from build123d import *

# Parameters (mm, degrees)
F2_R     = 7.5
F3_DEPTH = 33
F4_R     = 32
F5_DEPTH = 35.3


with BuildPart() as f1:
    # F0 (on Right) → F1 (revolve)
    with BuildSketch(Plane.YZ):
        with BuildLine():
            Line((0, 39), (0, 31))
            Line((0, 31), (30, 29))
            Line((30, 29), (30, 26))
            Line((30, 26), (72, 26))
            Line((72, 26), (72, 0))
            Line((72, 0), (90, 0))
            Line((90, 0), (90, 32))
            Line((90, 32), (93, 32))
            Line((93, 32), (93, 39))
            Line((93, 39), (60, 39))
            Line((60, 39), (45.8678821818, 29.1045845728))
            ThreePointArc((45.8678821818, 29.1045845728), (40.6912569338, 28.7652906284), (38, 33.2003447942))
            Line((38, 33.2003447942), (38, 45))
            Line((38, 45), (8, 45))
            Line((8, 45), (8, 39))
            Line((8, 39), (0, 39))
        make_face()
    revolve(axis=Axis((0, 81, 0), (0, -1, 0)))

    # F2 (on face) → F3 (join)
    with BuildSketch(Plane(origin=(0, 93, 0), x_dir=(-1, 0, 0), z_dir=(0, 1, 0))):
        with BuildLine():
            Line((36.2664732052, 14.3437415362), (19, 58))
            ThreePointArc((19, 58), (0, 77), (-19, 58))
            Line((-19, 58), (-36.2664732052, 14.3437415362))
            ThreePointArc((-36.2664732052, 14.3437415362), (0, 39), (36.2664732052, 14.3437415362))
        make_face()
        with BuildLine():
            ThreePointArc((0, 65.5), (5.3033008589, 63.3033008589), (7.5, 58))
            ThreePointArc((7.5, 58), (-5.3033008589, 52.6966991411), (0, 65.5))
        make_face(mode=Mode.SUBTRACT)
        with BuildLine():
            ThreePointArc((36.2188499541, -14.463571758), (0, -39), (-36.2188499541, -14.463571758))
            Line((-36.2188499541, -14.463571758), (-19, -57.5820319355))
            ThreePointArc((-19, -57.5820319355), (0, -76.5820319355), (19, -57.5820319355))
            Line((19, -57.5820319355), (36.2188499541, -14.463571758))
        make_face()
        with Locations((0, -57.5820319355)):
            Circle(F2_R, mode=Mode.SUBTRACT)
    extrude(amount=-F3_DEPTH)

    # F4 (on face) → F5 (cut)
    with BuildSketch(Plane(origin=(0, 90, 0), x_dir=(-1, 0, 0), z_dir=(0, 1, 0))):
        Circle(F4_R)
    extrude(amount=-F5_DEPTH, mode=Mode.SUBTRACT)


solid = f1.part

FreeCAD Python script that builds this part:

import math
import FreeCAD as App
import Part
import Sketcher
from FreeCAD import Vector
Q = App.Units.Quantity

doc = App.newDocument("Part")
body = doc.addObject("PartDesign::Body", "Body")

# Sketch on YZ plane
sketch1 = body.newObject("Sketcher::SketchObject", "Sketch")
sketch1.AttachmentSupport = (doc.getObject("YZ_Plane"), [""])
sketch1.MapMode = "FlatFace"
sketch1.addGeometry([
    Part.LineSegment(Vector(0, 39, 0), Vector(0, 31, 0)),  # 0
    Part.LineSegment(Vector(0, 31, 0), Vector(30, 29, 0)),  # 1
    Part.LineSegment(Vector(30, 29, 0), Vector(30, 26, 0)),  # 2
    Part.LineSegment(Vector(30, 26, 0), Vector(72, 26, 0)),  # 3
    Part.LineSegment(Vector(72, 26, 0), Vector(72, 0, 0)),  # 4
    Part.LineSegment(Vector(72, 0, 0), Vector(90, 0, 0)),  # 5
    Part.LineSegment(Vector(90, 0, 0), Vector(90, 32, 0)),  # 6
    Part.LineSegment(Vector(90, 32, 0), Vector(93, 32, 0)),  # 7
    Part.LineSegment(Vector(93, 32, 0), Vector(93, 39, 0)),  # 8
    Part.LineSegment(Vector(93, 39, 0), Vector(60, 39, 0)),  # 9
    Part.LineSegment(Vector(60, 39, 0), Vector(45.9, 29.1, 0)),  # 10
    Part.ArcOfCircle(Part.Circle(Vector(43, 33.2, 0), Vector(0, 0, 1), 5), math.radians(180), math.radians(305)),  # 11
    Part.LineSegment(Vector(38, 33.2, 0), Vector(38, 45, 0)),  # 12
    Part.LineSegment(Vector(38, 45, 0), Vector(8, 45, 0)),  # 13
    Part.LineSegment(Vector(8, 45, 0), Vector(8, 39, 0)),  # 14
    Part.LineSegment(Vector(8, 39, 0), Vector(0, 39, 0)),  # 15
], False)
sketch1.addConstraint([
    Sketcher.Constraint("Coincident", 0, 2, 1, 1),
    Sketcher.Constraint("Coincident", 1, 2, 2, 1),
    Sketcher.Constraint("Coincident", 2, 2, 3, 1),
    Sketcher.Constraint("Coincident", 3, 2, 4, 1),
    Sketcher.Constraint("Coincident", 4, 2, 5, 1),
    Sketcher.Constraint("Coincident", 5, 2, 6, 1),
    Sketcher.Constraint("Coincident", 6, 2, 7, 1),
    Sketcher.Constraint("Coincident", 7, 2, 8, 1),
    Sketcher.Constraint("Coincident", 8, 2, 9, 1),
    Sketcher.Constraint("Coincident", 9, 2, 10, 1),
    Sketcher.Constraint("Tangent", 10, 2, 11, 2),
    Sketcher.Constraint("Tangent", 11, 1, 12, 1),
    Sketcher.Constraint("Coincident", 12, 2, 13, 1),
    Sketcher.Constraint("Coincident", 13, 2, 14, 1),
    Sketcher.Constraint("Coincident", 14, 2, 15, 1),
    Sketcher.Constraint("Coincident", 15, 2, 0, 1),
    Sketcher.Constraint("Vertical", 0),
    Sketcher.Constraint("Vertical", 2),
    Sketcher.Constraint("Horizontal", 3),
    Sketcher.Constraint("Vertical", 4),
    Sketcher.Constraint("Horizontal", 5),
    Sketcher.Constraint("Vertical", 6),
    Sketcher.Constraint("Horizontal", 7),
    Sketcher.Constraint("Vertical", 8),
    Sketcher.Constraint("Horizontal", 9),
    Sketcher.Constraint("Vertical", 12),
    Sketcher.Constraint("Horizontal", 13),
    Sketcher.Constraint("Vertical", 14),
    Sketcher.Constraint("Horizontal", 15),
    Sketcher.Constraint("PointOnObject", 0, 2, -2),
    Sketcher.Constraint("PointOnObject", 4, 2, -1),
    Sketcher.Constraint("Horizontal", 9, 2, 14, 2),
    Sketcher.Constraint("Equal", 15, 0),
    Sketcher.Constraint("Equal", 7, 2),
    Sketcher.Constraint("Radius", 11, Q("5 mm")),
    Sketcher.Constraint("DistanceX", 3, 1, 3, 2, Q("42 mm")),
    Sketcher.Constraint("DistanceX", 5, 1, 5, 2, Q("18 mm")),
    Sketcher.Constraint("DistanceX", 7, 1, 7, 2, Q("3 mm")),
    Sketcher.Constraint("DistanceX", 9, 2, 9, 1, Q("33 mm")),
    Sketcher.Constraint("DistanceX", 13, 2, 13, 1, Q("30 mm")),
    Sketcher.Constraint("DistanceX", 15, 2, 15, 1, Q("8 mm")),
    Sketcher.Constraint("DistanceY", 4, 2, 4, 1, Q("26 mm")),
    Sketcher.Constraint("DistanceY", 6, 1, 6, 2, Q("32 mm")),
    Sketcher.Constraint("DistanceY", 8, 1, 8, 2, Q("7 mm")),
    Sketcher.Constraint("DistanceY", 14, 2, 14, 1, Q("6 mm")),
    Sketcher.Constraint("Angle", 10, Q("-145 deg")),
    Sketcher.Constraint("DistanceX", -1, 1, 1, 2, Q("30 mm")),
])
revolution = body.newObject("PartDesign::Revolution", "Revolution")
revolution.Profile = sketch1
revolution.ReferenceAxis = (sketch1, ["H_Axis"])
revolution.Angle = 360

# Sketch on XZ plane
sketch2 = body.newObject("Sketcher::SketchObject", "Sketch001")
sketch2.AttachmentSupport = (doc.getObject("XZ_Plane"), [""])
sketch2.MapMode = "FlatFace"
sketch2.AttachmentOffset = App.Placement(Vector(0, 0, -93), App.Rotation())
sketch2.addGeometry([
    Part.LineSegment(Vector(-36, 14, 0), Vector(-19, 58, 0)),  # 0
    Part.ArcOfCircle(Part.Circle(Vector(0, 58, 0), Vector(0, 0, 1), 19), math.radians(0), math.radians(180)),  # 1
    Part.LineSegment(Vector(19, 58, 0), Vector(36, 14, 0)),  # 2
    Part.ArcOfCircle(Part.Circle(Vector(0, 0, 0), Vector(0, 0, 1), 39), math.radians(22), math.radians(158)),  # 3
    Part.Circle(Vector(0, 58, 0), Vector(0, 0, 1), 8),  # 4
    Part.ArcOfCircle(Part.Circle(Vector(0, 0, 0), Vector(0, 0, 1), 39), math.radians(-158), math.radians(-22)),  # 5
    Part.LineSegment(Vector(36, -14, 0), Vector(19, -58, 0)),  # 6
    Part.ArcOfCircle(Part.Circle(Vector(0, -58, 0), Vector(0, 0, 1), 19), math.radians(180), math.radians(360)),  # 7
    Part.LineSegment(Vector(-19, -58, 0), Vector(-36, -14, 0)),  # 8
    Part.Circle(Vector(0, -58, 0), Vector(0, 0, 1), 8),  # 9
], False)
sketch2.addConstraint([
    Sketcher.Constraint("Coincident", 0, 2, 1, 2),
    Sketcher.Constraint("Coincident", 1, 1, 2, 1),
    Sketcher.Constraint("Tangent", 2, 2, 3, 1),
    Sketcher.Constraint("Tangent", 3, 2, 0, 1),
    Sketcher.Constraint("Tangent", 5, 2, 6, 1),
    Sketcher.Constraint("Coincident", 6, 2, 7, 2),
    Sketcher.Constraint("Coincident", 7, 1, 8, 1),
    Sketcher.Constraint("Tangent", 8, 2, 5, 1),
    Sketcher.Constraint("Coincident", 3, 3, -1, 1),
    Sketcher.Constraint("Coincident", 5, 3, -1, 1),
    Sketcher.Constraint("Coincident", 4, 3, 1, 3),
    Sketcher.Constraint("Coincident", 9, 3, 7, 3),
    Sketcher.Constraint("Equal", 3, 5),
    Sketcher.Constraint("Equal", 1, 7),
    Sketcher.Constraint("Equal", 4, 9),
    Sketcher.Constraint("Symmetric", 0, 2, 1, 1, -2),
    Sketcher.Constraint("Symmetric", 6, 2, 7, 1, -2),
    Sketcher.Constraint("Horizontal", 4, 3, 0, 2),
    Sketcher.Constraint("Horizontal", 9, 3, 6, 2),
    Sketcher.Constraint("Diameter", 4, Q("15 mm")),
    Sketcher.Constraint("Radius", 1, Q("19 mm")),
    Sketcher.Constraint("Radius", 3, Q("39 mm")),
    Sketcher.Constraint("DistanceY", -1, 1, 1, 3, Q("58 mm")),
    Sketcher.Constraint("DistanceY", 7, 3, -1, 1, Q("57.582032 mm")),
])
pad1 = body.newObject("PartDesign::Pad", "Pad")
pad1.Profile = sketch2
pad1.Length = 33

# Sketch on XZ plane
sketch3 = body.newObject("Sketcher::SketchObject", "Sketch002")
sketch3.AttachmentSupport = (doc.getObject("XZ_Plane"), [""])
sketch3.MapMode = "FlatFace"
sketch3.AttachmentOffset = App.Placement(Vector(0, 0, -90), App.Rotation())
sketch3.addGeometry(Part.Circle(Vector(0, 0, 0), Vector(0, 0, 1), 32), False)
sketch3.addConstraint([
    Sketcher.Constraint("Coincident", 0, 3, -1, 1),
    Sketcher.Constraint("Diameter", 0, Q("64 mm")),
])
pocket1 = body.newObject("PartDesign::Pocket", "Pocket")
pocket1.Profile = sketch3
pocket1.Length = 35.3
pocket1.Reversed = True

doc.recompute()
